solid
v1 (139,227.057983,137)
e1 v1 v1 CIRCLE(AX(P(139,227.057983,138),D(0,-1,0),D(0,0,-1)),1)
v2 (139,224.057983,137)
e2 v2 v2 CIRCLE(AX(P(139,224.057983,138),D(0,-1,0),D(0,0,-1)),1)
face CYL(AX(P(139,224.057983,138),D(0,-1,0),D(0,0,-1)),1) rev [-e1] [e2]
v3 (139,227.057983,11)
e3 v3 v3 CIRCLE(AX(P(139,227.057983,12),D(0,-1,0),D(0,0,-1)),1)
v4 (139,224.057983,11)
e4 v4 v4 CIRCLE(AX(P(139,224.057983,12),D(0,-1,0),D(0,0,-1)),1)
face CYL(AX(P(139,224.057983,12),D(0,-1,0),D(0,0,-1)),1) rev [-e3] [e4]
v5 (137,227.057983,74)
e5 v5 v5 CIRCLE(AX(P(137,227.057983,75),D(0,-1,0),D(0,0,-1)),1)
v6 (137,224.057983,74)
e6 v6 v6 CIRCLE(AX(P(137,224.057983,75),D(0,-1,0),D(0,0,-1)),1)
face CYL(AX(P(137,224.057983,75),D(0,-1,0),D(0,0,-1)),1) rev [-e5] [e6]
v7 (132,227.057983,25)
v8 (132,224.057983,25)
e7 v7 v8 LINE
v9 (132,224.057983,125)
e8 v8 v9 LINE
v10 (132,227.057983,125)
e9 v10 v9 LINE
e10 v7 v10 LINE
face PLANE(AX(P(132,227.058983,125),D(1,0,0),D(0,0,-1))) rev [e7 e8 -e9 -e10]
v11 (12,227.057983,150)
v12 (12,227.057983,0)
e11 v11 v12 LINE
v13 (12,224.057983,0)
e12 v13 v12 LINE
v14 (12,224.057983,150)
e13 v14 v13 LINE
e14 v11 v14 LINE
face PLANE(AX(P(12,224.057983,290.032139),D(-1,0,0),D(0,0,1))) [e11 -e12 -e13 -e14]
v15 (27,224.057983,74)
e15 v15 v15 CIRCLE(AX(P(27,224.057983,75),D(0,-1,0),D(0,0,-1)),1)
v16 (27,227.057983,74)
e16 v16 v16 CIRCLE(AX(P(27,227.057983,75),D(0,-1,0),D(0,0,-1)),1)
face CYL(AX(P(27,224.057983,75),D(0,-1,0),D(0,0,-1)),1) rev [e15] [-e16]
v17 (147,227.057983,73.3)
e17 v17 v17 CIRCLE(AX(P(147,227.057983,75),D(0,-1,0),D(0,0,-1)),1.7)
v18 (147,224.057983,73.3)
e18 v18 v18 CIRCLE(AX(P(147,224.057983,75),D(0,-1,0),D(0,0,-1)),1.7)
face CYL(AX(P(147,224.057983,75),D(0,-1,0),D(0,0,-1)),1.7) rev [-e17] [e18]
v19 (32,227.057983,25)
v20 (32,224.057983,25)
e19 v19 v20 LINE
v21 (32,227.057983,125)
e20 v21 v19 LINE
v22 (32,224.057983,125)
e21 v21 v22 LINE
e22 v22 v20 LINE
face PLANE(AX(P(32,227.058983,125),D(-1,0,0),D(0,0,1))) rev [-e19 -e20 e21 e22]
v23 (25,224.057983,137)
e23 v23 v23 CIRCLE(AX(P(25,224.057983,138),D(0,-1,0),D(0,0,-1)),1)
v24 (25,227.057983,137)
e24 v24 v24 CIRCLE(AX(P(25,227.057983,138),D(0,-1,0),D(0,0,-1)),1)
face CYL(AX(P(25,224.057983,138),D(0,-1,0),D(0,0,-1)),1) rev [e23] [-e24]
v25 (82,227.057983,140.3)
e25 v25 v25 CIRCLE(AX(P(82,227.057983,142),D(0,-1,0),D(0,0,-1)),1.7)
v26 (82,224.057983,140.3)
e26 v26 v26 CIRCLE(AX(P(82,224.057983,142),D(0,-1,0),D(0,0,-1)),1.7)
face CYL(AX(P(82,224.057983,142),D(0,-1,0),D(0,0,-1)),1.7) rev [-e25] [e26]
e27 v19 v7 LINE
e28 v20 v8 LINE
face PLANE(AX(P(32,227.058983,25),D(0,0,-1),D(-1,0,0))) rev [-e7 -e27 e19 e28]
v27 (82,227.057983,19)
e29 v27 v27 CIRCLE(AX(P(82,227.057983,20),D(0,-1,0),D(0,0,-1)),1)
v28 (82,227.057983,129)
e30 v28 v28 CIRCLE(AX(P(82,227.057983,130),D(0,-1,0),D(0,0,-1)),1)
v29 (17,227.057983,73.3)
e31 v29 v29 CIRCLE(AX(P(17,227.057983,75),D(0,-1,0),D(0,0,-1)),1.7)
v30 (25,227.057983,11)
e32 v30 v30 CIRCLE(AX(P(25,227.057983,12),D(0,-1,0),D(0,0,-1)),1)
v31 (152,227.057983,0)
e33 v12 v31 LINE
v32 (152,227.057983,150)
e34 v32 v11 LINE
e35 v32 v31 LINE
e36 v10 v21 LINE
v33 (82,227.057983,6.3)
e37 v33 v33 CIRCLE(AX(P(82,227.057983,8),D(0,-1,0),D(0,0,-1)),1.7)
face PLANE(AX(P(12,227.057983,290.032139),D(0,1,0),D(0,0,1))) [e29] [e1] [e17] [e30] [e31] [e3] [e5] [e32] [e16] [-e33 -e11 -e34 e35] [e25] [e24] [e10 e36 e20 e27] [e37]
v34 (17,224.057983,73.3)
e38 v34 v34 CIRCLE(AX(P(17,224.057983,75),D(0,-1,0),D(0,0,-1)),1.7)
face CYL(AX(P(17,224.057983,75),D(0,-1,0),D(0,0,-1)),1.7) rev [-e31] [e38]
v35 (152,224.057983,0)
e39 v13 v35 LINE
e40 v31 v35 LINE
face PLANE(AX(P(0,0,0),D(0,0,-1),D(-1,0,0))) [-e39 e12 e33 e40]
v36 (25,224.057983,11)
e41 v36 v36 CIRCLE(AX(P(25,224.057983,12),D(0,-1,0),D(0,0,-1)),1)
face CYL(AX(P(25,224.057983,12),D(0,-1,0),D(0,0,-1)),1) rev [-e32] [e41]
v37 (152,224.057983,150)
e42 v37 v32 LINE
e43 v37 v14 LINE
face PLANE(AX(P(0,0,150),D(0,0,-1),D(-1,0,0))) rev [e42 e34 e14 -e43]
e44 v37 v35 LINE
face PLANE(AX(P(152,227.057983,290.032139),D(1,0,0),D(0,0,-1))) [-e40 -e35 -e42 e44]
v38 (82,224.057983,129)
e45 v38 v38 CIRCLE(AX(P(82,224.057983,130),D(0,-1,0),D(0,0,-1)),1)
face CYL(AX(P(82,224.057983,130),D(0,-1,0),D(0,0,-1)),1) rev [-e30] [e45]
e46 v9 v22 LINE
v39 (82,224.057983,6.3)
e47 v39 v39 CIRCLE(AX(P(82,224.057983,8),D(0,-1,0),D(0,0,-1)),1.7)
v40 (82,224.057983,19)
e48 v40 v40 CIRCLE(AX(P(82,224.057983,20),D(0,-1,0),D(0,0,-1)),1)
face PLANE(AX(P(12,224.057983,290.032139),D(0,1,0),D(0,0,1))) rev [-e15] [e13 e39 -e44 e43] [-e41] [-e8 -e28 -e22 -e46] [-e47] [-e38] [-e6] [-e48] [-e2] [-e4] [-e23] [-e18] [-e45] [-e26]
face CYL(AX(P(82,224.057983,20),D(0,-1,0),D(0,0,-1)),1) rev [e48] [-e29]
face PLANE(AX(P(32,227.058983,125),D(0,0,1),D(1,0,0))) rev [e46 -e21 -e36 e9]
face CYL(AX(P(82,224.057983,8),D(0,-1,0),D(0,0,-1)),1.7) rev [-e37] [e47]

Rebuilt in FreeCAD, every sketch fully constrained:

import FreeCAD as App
import Part
import Sketcher

V = App.Vector
Q = App.Units.Quantity

doc = App.newDocument("Part")
body = doc.addObject("PartDesign::Body", "Body")

sketch1 = doc.addObject("Sketcher::SketchObject", "Sketch")
body.addObject(sketch1)
sketch1.AttachmentSupport = (doc.XY_Plane, [""])
sketch1.MapMode = "FlatFace"
sketch1.addGeometry([
    Part.LineSegment(V(12, 227.057983, 0), V(12, 224.057983, 0)),
    Part.LineSegment(V(12, 224.057983, 0), V(152, 224.057983, 0)),
    Part.LineSegment(V(152, 224.057983, 0), V(152, 227.057983, 0)),
    Part.LineSegment(V(152, 227.057983, 0), V(12, 227.057983, 0)),
], False)
sketch1.addConstraint([
    Sketcher.Constraint("Coincident", 0, 2, 1, 1),
    Sketcher.Constraint("Coincident", 1, 2, 2, 1),
    Sketcher.Constraint("Coincident", 2, 2, 3, 1),
    Sketcher.Constraint("Coincident", 3, 2, 0, 1),
    Sketcher.Constraint("Vertical", 0),
    Sketcher.Constraint("Horizontal", 1),
    Sketcher.Constraint("Vertical", 2),
    Sketcher.Constraint("Horizontal", 3),
    Sketcher.Constraint("DistanceX", 1, 1, 1, 2, Q("140 mm")),
    Sketcher.Constraint("DistanceY", 0, 2, 0, 1, Q("3 mm")),
    Sketcher.Constraint("DistanceX", -1, 1, 0, 2, Q("12 mm")),
    Sketcher.Constraint("DistanceY", -1, 1, 0, 2, Q("224.057983 mm")),
])
pad1 = doc.addObject("PartDesign::Pad", "Pad")
body.addObject(pad1)
pad1.Profile = sketch1
pad1.Length = 150

sketch2 = doc.addObject("Sketcher::SketchObject", "Sketch001")
body.addObject(sketch2)
sketch2.AttachmentSupport = (doc.XZ_Plane, [""])
sketch2.MapMode = "FlatFace"
sketch2.AttachmentOffset = App.Placement(V(0, 0, -224.057983), App.Rotation())
sketch2.addGeometry([
    Part.LineSegment(V(32, 125, 0), V(32, 25, 0)),
    Part.LineSegment(V(32, 25, 0), V(132, 25, 0)),
    Part.LineSegment(V(132, 25, 0), V(132, 125, 0)),
    Part.LineSegment(V(132, 125, 0), V(32, 125, 0)),
], False)
sketch2.addConstraint([
    Sketcher.Constraint("Coincident", 0, 2, 1, 1),
    Sketcher.Constraint("Coincident", 1, 2, 2, 1),
    Sketcher.Constraint("Coincident", 2, 2, 3, 1),
    Sketcher.Constraint("Coincident", 3, 2, 0, 1),
    Sketcher.Constraint("Vertical", 0),
    Sketcher.Constraint("Horizontal", 1),
    Sketcher.Constraint("Vertical", 2),
    Sketcher.Constraint("Horizontal", 3),
    Sketcher.Constraint("Equal", 3, 0),
    Sketcher.Constraint("DistanceX", 1, 1, 1, 2, Q("100 mm")),
    Sketcher.Constraint("DistanceX", -1, 1, 0, 2, Q("32 mm")),
    Sketcher.Constraint("DistanceY", -1, 1, 0, 2, Q("25 mm")),
])
pocket1 = doc.addObject("PartDesign::Pocket", "Pocket")
body.addObject(pocket1)
pocket1.Profile = sketch2
pocket1.Type = "UpToFirst"

sketch3 = doc.addObject("Sketcher::SketchObject", "Sketch002")
body.addObject(sketch3)
sketch3.AttachmentSupport = (doc.XZ_Plane, [""])
sketch3.MapMode = "FlatFace"
sketch3.AttachmentOffset = App.Placement(V(0, 0, -224.057983), App.Rotation())
sketch3.addGeometry([
    Part.Circle(V(82, 142, 0), V(0, 0, 1), 1.7),
    Part.Circle(V(147, 75, 0), V(0, 0, 1), 1.7),
    Part.Circle(V(82, 8, 0), V(0, 0, 1), 1.7),
    Part.Circle(V(17, 75, 0), V(0, 0, 1), 1.7),
], False)
sketch3.addConstraint([
    Sketcher.Constraint("Equal", 0, 1),
    Sketcher.Constraint("Equal", 1, 2),
    Sketcher.Constraint("Equal", 2, 3),
    Sketcher.Constraint("Horizontal", 1, 3, 3, 3),
    Sketcher.Constraint("Vertical", 0, 3, 2, 3),
    Sketcher.Constraint("Diameter", 0, Q("3.4 mm")),
    Sketcher.Constraint("DistanceX", -1, 1, 0, 3, Q("82 mm")),
    Sketcher.Constraint("DistanceY", -1, 1, 0, 3, Q("142 mm")),
    Sketcher.Constraint("DistanceX", -1, 1, 1, 3, Q("147 mm")),
    Sketcher.Constraint("DistanceY", -1, 1, 1, 3, Q("75 mm")),
    Sketcher.Constraint("DistanceY", -1, 1, 2, 3, Q("8 mm")),
    Sketcher.Constraint("DistanceX", -1, 1, 3, 3, Q("17 mm")),
])
doc.recompute()
hole = doc.addObject("PartDesign::Hole", "Hole")
body.addObject(hole)
hole.Profile = sketch3
hole.ThreadType = "None"
hole.Diameter = 3.4
hole.DepthType = "ThroughAll"

sketch4 = doc.addObject("Sketcher::SketchObject", "Sketch003")
body.addObject(sketch4)
sketch4.AttachmentSupport = (doc.XZ_Plane, [""])
sketch4.MapMode = "FlatFace"
sketch4.AttachmentOffset = App.Placement(V(0, 0, -224.057983), App.Rotation())
sketch4.addGeometry([
    Part.Circle(V(139, 138, 0), V(0, 0, 1), 1),
    Part.Circle(V(25, 138, 0), V(0, 0, 1), 1),
    Part.Circle(V(82, 130, 0), V(0, 0, 1), 1),
    Part.Circle(V(27, 75, 0), V(0, 0, 1), 1),
    Part.Circle(V(137, 75, 0), V(0, 0, 1), 1),
    Part.Circle(V(82, 20, 0), V(0, 0, 1), 1),
    Part.Circle(V(25, 12, 0), V(0, 0, 1), 1),
    Part.Circle(V(139, 12, 0), V(0, 0, 1), 1),
], False)
sketch4.addConstraint([
    Sketcher.Constraint("Equal", 0, 1),
    Sketcher.Constraint("Equal", 1, 2),
    Sketcher.Constraint("Equal", 2, 3),
    Sketcher.Constraint("Equal", 3, 4),
    Sketcher.Constraint("Equal", 4, 5),
    Sketcher.Constraint("Equal", 5, 6),
    Sketcher.Constraint("Equal", 6, 7),
    Sketcher.Constraint("Horizontal", 0, 3, 1, 3),
    Sketcher.Constraint("Horizontal", 3, 3, 4, 3),
    Sketcher.Constraint("Horizontal", 6, 3, 7, 3),
    Sketcher.Constraint("Vertical", 2, 3, 5, 3),
    Sketcher.Constraint("Vertical", 1, 3, 6, 3),
    Sketcher.Constraint("Vertical", 0, 3, 7, 3),
    Sketcher.Constraint("Diameter", 0, Q("2 mm")),
    Sketcher.Constraint("DistanceX", -1, 1, 0, 3, Q("139 mm")),
    Sketcher.Constraint("DistanceY", -1, 1, 0, 3, Q("138 mm")),
    Sketcher.Constraint("DistanceX", -1, 1, 1, 3, Q("25 mm")),
    Sketcher.Constraint("DistanceX", -1, 1, 2, 3, Q("82 mm")),
    Sketcher.Constraint("DistanceY", -1, 1, 2, 3, Q("130 mm")),
    Sketcher.Constraint("DistanceX", -1, 1, 3, 3, Q("27 mm")),
    Sketcher.Constraint("DistanceY", -1, 1, 3, 3, Q("75 mm")),
    Sketcher.Constraint("DistanceX", -1, 1, 4, 3, Q("137 mm")),
    Sketcher.Constraint("DistanceY", -1, 1, 5, 3, Q("20 mm")),
    Sketcher.Constraint("DistanceY", -1, 1, 6, 3, Q("12 mm")),
])
doc.recompute()
hole2 = doc.addObject("PartDesign::Hole", "Hole001")
body.addObject(hole2)
hole2.Profile = sketch4
hole2.ThreadType = "None"
hole2.Diameter = 2
hole2.DepthType = "ThroughAll"

doc.recompute()
